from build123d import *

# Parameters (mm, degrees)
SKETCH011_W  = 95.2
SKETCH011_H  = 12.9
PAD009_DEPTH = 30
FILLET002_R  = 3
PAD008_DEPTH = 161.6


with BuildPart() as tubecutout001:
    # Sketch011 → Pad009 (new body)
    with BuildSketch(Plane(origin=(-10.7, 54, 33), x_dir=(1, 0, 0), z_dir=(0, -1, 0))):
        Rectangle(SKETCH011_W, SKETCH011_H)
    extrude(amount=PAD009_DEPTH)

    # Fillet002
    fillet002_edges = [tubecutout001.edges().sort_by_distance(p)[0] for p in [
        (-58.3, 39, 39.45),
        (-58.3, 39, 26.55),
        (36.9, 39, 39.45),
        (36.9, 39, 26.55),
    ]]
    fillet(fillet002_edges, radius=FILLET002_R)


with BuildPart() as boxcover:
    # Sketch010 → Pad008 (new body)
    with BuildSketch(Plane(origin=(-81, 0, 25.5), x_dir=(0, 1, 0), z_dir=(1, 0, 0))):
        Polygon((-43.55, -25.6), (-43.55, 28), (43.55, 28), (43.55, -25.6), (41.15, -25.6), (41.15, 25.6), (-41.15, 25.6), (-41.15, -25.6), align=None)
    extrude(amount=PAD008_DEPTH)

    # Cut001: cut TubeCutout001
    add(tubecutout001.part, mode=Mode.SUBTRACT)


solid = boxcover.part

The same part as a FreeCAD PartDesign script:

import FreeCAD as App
import Part
import Sketcher

V = App.Vector
Q = App.Units.Quantity


def edges_at(feature, points):
    """Names of the edges that pass closest to the given points."""
    edges = feature.Shape.Edges
    near = lambda p: min(range(len(edges)), key=lambda i: edges[i].distToShape(Part.Vertex(*p))[0])
    return sorted({f"Edge{near(p) + 1}" for p in points})

doc = App.newDocument("Part")
body = doc.addObject("PartDesign::Body", "Body")

sketch1 = body.newObject("Sketcher::SketchObject", "Sketch")
sketch1.AttachmentSupport = (doc.getObject("XZ_Plane"), [""])
sketch1.MapMode = "FlatFace"
sketch1.AttachmentOffset = App.Placement(V(0, 0, -54), App.Rotation())
sketch1.addGeometry([
    Part.LineSegment(V(-58, 39, 0), V(-58, 27, 0)),
    Part.LineSegment(V(-58, 27, 0), V(37, 27, 0)),
    Part.LineSegment(V(37, 27, 0), V(37, 39, 0)),
    Part.LineSegment(V(37, 39, 0), V(-58, 39, 0)),
], False)
sketch1.addConstraint([
    Sketcher.Constraint("Coincident", 0, 2, 1, 1),
    Sketcher.Constraint("Coincident", 1, 2, 2, 1),
    Sketcher.Constraint("Coincident", 2, 2, 3, 1),
    Sketcher.Constraint("Coincident", 3, 2, 0, 1),
    Sketcher.Constraint("Vertical", 0),
    Sketcher.Constraint("Horizontal", 1),
    Sketcher.Constraint("Vertical", 2),
    Sketcher.Constraint("Horizontal", 3),
    Sketcher.Constraint("DistanceX", 1, 1, 1, 2, Q("95.2 mm")),
    Sketcher.Constraint("DistanceY", 0, 2, 0, 1, Q("12.9 mm")),
    Sketcher.Constraint("DistanceX", 0, 2, -1, 1, Q("58.3 mm")),
    Sketcher.Constraint("DistanceY", -1, 1, 0, 2, Q("26.55 mm")),
])
pad1 = body.newObject("PartDesign::Pad", "Pad")
pad1.Profile = sketch1
pad1.Length = 30
doc.recompute()

fillet = body.newObject("PartDesign::Fillet", "Fillet")
fillet.Base = (pad1, edges_at(pad1, [
    (-58.3, 39, 39.45),
    (-58.3, 39, 26.55),
    (36.9, 39, 39.45),
    (36.9, 39, 26.55),
]))
fillet.Radius = 3
body2 = doc.addObject("PartDesign::Body", "Body001")

sketch2 = body2.newObject("Sketcher::SketchObject", "Sketch001")
sketch2.AttachmentSupport = (doc.getObject("YZ_Plane001"), [""])
sketch2.MapMode = "FlatFace"
sketch2.AttachmentOffset = App.Placement(V(0, 0, -81), App.Rotation())
sketch2.addGeometry([
    Part.LineSegment(V(-43.5, 53.5, 0), V(-43.5, -0.1, 0)),
    Part.LineSegment(V(-43.5, -0.1, 0), V(-41.1, -0.1, 0)),
    Part.LineSegment(V(-41.1, -0.1, 0), V(-41.1, 51.1, 0)),
    Part.LineSegment(V(-41.1, 51.1, 0), V(41.1, 51.1, 0)),
    Part.LineSegment(V(41.1, 51.1, 0), V(41.1, -0.1, 0)),
    Part.LineSegment(V(41.1, -0.1, 0), V(43.5, -0.1, 0)),
    Part.LineSegment(V(43.5, -0.1, 0), V(43.5, 53.5, 0)),
    Part.LineSegment(V(43.5, 53.5, 0), V(-43.5, 53.5, 0)),
], False)
sketch2.addConstraint([
    Sketcher.Constraint("Coincident", 0, 2, 1, 1),
    Sketcher.Constraint("Coincident", 1, 2, 2, 1),
    Sketcher.Constraint("Coincident", 2, 2, 3, 1),
    Sketcher.Constraint("Coincident", 3, 2, 4, 1),
    Sketcher.Constraint("Coincident", 4, 2, 5, 1),
    Sketcher.Constraint("Coincident", 5, 2, 6, 1),
    Sketcher.Constraint("Coincident", 6, 2, 7, 1),
    Sketcher.Constraint("Coincident", 7, 2, 0, 1),
    Sketcher.Constraint("Vertical", 0),
    Sketcher.Constraint("Horizontal", 1),
    Sketcher.Constraint("Vertical", 2),
    Sketcher.Constraint("Horizontal", 3),
    Sketcher.Constraint("Vertical", 4),
    Sketcher.Constraint("Horizontal", 5),
    Sketcher.Constraint("Vertical", 6),
    Sketcher.Constraint("Horizontal", 7),
    Sketcher.Constraint("Symmetric", 1, 2, 4, 2, -2),
    Sketcher.Constraint("Equal", 1, 5),
    Sketcher.Constraint("DistanceX", 1, 1, 1, 2, Q("2.4 mm")),
    Sketcher.Constraint("DistanceX", 3, 1, 3, 2, Q("82.3 mm")),
    Sketcher.Constraint("DistanceY", 0, 2, 0, 1, Q("53.6 mm")),
    Sketcher.Constraint("DistanceY", 2, 1, 2, 2, Q("51.2 mm")),
    Sketcher.Constraint("DistanceY", 0, 2, -1, 1, Q("0.1 mm")),
])
pad2 = body2.newObject("PartDesign::Pad", "Pad001")
pad2.Profile = sketch2
pad2.Length = 161.6
doc.recompute()

boolean = body2.newObject("PartDesign::Boolean", "Boolean")
boolean.Type = "Cut"
boolean.addObjects([body])

doc.recompute()
